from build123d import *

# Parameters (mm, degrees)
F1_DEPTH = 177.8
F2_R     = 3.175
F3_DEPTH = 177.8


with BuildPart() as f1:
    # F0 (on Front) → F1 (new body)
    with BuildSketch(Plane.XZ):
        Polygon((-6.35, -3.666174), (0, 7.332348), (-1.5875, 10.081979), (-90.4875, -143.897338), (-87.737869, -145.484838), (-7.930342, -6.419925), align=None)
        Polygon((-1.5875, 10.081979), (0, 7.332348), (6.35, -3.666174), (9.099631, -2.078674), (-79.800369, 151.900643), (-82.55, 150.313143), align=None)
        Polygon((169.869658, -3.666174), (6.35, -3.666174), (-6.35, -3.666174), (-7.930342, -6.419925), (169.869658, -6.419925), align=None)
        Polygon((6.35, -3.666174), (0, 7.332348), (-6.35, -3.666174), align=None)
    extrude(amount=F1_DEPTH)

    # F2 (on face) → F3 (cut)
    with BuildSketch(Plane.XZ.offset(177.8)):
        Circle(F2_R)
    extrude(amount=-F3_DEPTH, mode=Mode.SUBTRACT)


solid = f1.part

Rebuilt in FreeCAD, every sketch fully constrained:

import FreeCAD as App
import Part
import Sketcher

V = App.Vector
Q = App.Units.Quantity

doc = App.newDocument("Part")
body = doc.addObject("PartDesign::Body", "Body")

# Sketch on XZ plane
sketch1 = doc.addObject("Sketcher::SketchObject", "Sketch")
body.addObject(sketch1)
sketch1.AttachmentSupport = (doc.XZ_Plane, [""])
sketch1.MapMode = "FlatFace"
sketch1.addGeometry(Part.LineSegment(V(169.9, -3.7, 0), V(6.3, -3.7, 0)), False)
sketch1.addGeometry(Part.LineSegment(V(6.3, -3.7, 0), V(9.1, -2.1, 0)), False)
sketch1.addGeometry(Part.LineSegment(V(9.1, -2.1, 0), V(-79.8, 151.9, 0)), False)
sketch1.addGeometry(Part.LineSegment(V(-79.8, 151.9, 0), V(-82.5, 150.3, 0)), False)
sketch1.addGeometry(Part.LineSegment(V(-82.5, 150.3, 0), V(-1.6, 10.1, 0)), False)
sketch1.addGeometry(Part.LineSegment(V(-1.6, 10.1, 0), V(-90.5, -143.9, 0)), False)
sketch1.addGeometry(Part.LineSegment(V(-90.5, -143.9, 0), V(-87.7, -145.5, 0)), False)
sketch1.addGeometry(Part.LineSegment(V(-87.7, -145.5, 0), V(-7.9, -6.4, 0)), False)
sketch1.addGeometry(Part.LineSegment(V(-7.9, -6.4, 0), V(169.9, -6.4, 0)), False)
sketch1.addGeometry(Part.LineSegment(V(169.9, -6.4, 0), V(169.9, -3.7, 0)), False)
sketch1.addConstraint(Sketcher.Constraint("Coincident", 0, 2, 1, 1))
sketch1.addConstraint(Sketcher.Constraint("Coincident", 1, 2, 2, 1))
sketch1.addConstraint(Sketcher.Constraint("Coincident", 2, 2, 3, 1))
sketch1.addConstraint(Sketcher.Constraint("Coincident", 3, 2, 4, 1))
sketch1.addConstraint(Sketcher.Constraint("Coincident", 4, 2, 5, 1))
sketch1.addConstraint(Sketcher.Constraint("Coincident", 5, 2, 6, 1))
sketch1.addConstraint(Sketcher.Constraint("Coincident", 6, 2, 7, 1))
sketch1.addConstraint(Sketcher.Constraint("Coincident", 7, 2, 8, 1))
sketch1.addConstraint(Sketcher.Constraint("Coincident", 8, 2, 9, 1))
sketch1.addConstraint(Sketcher.Constraint("Coincident", 9, 2, 0, 1))
sketch1.addConstraint(Sketcher.Constraint("Horizontal", 0))
sketch1.addConstraint(Sketcher.Constraint("Horizontal", 8))
sketch1.addConstraint(Sketcher.Constraint("Vertical", 9))
sketch1.addConstraint(Sketcher.Constraint("Perpendicular", 1, 2))
sketch1.addConstraint(Sketcher.Constraint("Perpendicular", 2, 3))
sketch1.addConstraint(Sketcher.Constraint("Perpendicular", 3, 4))
sketch1.addConstraint(Sketcher.Constraint("Perpendicular", 5, 6))
sketch1.addConstraint(Sketcher.Constraint("Equal", 1, 3))
sketch1.addConstraint(Sketcher.Constraint("Equal", 2, 5))
sketch1.addConstraint(Sketcher.Constraint("Equal", 3, 6))
sketch1.addConstraint(Sketcher.Constraint("DistanceX", 8, 1, 8, 2, Q("7 in")))
sketch1.addConstraint(Sketcher.Constraint("Distance", 2, Q("7 in")))
sketch1.addConstraint(Sketcher.Constraint("Angle", 1, Q("29.999997 deg")))
sketch1.addConstraint(Sketcher.Constraint("Angle", 5, Q("-120 deg")))
sketch1.addConstraint(Sketcher.Constraint("DistanceX", -1, 1, 0, 2, Q("0.25 in")))
sketch1.addConstraint(Sketcher.Constraint("Distance", 1, Q("0.125 in")))
sketch1.addConstraint(Sketcher.Constraint("Distance", 4, Q("6.375 in")))
sketch1.addConstraint(Sketcher.Constraint("DistanceX", 0, 2, 0, 1, 163.519658))
sketch1.addConstraint(Sketcher.Constraint("DistanceY", 9, 1, 9, 2, 2.753751))
sketch1.addConstraint(Sketcher.Constraint("DistanceY", -1, 1, 4, 2, 10.081979))
pad1 = doc.addObject("PartDesign::Pad", "Pad")
body.addObject(pad1)
pad1.Profile = sketch1
pad1.Length = Q("7 in")

# Sketch on XZ plane
sketch2 = doc.addObject("Sketcher::SketchObject", "Sketch001")
body.addObject(sketch2)
sketch2.AttachmentSupport = (doc.XZ_Plane, [""])
sketch2.MapMode = "FlatFace"
sketch2.AttachmentOffset = App.Placement(V(0, 0, 7 * 25.4), App.Rotation())
sketch2.addGeometry(Part.Circle(V(0, 0, 0), V(0, 0, 1), 3.2), False)
sketch2.addConstraint(Sketcher.Constraint("Coincident", 0, 3, -1, 1))
sketch2.addConstraint(Sketcher.Constraint("Diameter", 0, Q("0.25 in")))
pocket1 = doc.addObject("PartDesign::Pocket", "Pocket")
body.addObject(pocket1)
pocket1.Profile = sketch2
pocket1.Length = Q("7 in")

doc.recompute()
